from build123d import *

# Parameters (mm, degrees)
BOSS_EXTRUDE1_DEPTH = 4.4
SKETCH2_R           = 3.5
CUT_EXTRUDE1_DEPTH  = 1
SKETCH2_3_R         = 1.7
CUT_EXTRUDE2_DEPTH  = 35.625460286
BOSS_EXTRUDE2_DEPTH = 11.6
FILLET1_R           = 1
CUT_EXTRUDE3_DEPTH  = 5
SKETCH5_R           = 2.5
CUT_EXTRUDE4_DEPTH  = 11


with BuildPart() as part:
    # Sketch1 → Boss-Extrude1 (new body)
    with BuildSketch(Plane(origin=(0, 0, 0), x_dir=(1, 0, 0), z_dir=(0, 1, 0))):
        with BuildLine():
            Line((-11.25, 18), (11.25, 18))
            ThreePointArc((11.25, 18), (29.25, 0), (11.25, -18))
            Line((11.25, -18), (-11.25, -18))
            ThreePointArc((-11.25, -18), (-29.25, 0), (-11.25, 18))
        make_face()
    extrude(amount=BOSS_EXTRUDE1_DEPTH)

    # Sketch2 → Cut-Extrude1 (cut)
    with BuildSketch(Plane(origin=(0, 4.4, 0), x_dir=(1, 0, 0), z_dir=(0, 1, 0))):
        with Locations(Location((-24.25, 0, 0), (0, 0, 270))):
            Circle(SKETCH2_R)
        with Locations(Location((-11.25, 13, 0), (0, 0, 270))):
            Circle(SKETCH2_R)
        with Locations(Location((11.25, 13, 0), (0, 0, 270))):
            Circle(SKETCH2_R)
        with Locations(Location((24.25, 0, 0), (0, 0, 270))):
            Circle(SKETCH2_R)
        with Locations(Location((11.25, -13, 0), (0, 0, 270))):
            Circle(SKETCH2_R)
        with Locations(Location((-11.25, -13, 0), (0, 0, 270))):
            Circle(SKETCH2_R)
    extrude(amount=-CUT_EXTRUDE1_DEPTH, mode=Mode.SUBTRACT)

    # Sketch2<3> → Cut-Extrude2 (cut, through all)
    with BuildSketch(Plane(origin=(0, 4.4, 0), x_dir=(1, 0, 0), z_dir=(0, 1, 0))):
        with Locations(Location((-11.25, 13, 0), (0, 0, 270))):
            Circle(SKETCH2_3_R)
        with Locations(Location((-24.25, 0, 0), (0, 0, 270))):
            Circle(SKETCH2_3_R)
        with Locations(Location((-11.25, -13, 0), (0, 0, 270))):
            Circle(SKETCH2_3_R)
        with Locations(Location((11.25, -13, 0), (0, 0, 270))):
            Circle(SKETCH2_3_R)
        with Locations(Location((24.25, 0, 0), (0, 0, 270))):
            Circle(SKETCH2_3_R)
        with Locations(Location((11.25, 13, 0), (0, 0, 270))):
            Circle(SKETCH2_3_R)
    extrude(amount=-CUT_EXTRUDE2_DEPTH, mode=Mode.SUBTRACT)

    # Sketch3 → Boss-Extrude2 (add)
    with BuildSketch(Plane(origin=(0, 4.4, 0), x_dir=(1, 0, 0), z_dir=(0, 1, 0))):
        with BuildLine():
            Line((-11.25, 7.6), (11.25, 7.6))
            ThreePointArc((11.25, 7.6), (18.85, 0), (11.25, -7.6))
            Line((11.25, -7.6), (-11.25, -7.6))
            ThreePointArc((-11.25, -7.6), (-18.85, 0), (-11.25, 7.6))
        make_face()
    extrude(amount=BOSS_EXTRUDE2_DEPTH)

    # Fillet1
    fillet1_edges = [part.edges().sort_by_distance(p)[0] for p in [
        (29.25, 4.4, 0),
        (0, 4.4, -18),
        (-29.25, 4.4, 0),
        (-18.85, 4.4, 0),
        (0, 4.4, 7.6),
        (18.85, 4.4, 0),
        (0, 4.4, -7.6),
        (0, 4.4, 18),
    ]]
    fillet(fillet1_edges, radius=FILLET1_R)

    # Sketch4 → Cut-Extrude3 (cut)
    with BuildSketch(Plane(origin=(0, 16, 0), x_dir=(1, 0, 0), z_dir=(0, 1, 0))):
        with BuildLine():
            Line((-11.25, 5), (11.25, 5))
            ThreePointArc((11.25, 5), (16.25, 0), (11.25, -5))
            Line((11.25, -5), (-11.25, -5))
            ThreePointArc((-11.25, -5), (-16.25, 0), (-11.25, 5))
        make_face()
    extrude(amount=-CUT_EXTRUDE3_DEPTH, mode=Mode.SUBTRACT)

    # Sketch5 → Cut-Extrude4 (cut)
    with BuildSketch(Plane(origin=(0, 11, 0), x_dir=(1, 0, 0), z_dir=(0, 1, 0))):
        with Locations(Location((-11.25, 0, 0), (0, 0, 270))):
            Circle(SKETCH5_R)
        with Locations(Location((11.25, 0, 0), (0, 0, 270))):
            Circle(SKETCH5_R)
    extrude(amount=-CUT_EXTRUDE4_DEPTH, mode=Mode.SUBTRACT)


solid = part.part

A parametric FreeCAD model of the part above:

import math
import FreeCAD as App
import Part
import Sketcher


def edges_at(feature, points):
    """Names of the edges that pass closest to the given points."""
    edges = feature.Shape.Edges
    near = lambda p: min(range(len(edges)), key=lambda i: edges[i].distToShape(Part.Vertex(*p))[0])
    return sorted({f"Edge{near(p) + 1}" for p in points})

doc = App.newDocument("Part")
body = doc.addObject("PartDesign::Body", "Body")

sketch1 = body.newObject("Sketcher::SketchObject", "Sketch")
sketch1.AttachmentSupport = (doc.getObject("XZ_Plane"), [""])
sketch1.MapMode = "FlatFace"
sketch1.addGeometry(Part.LineSegment(App.Vector(11, -18, 0), App.Vector(-11, -18, 0)), False)
sketch1.addGeometry(Part.ArcOfCircle(Part.Circle(App.Vector(-11, 0, 0), App.Vector(0, 0, 1), 18), math.radians(90), math.radians(270)), False)
sketch1.addGeometry(Part.LineSegment(App.Vector(-11, 18, 0), App.Vector(11, 18, 0)), False)
sketch1.addGeometry(Part.ArcOfCircle(Part.Circle(App.Vector(11, 0, 0), App.Vector(0, 0, 1), 18), math.radians(-90), math.radians(90)), False)
sketch1.addConstraint(Sketcher.Constraint("Tangent", 0, 2, 1, 2))
sketch1.addConstraint(Sketcher.Constraint("Tangent", 1, 1, 2, 1))
sketch1.addConstraint(Sketcher.Constraint("Tangent", 2, 2, 3, 2))
sketch1.addConstraint(Sketcher.Constraint("Tangent", 3, 1, 0, 1))
sketch1.addConstraint(Sketcher.Constraint("Horizontal", 0))
sketch1.addConstraint(Sketcher.Constraint("Horizontal", 2))
sketch1.addConstraint(Sketcher.Constraint("Symmetric", 1, 3, 3, 3, -1, 1))
sketch1.addConstraint(Sketcher.Constraint("Radius", 1, 18.0))
sketch1.addConstraint(Sketcher.Constraint("DistanceX", 0, 2, 0, 1, 22.5))
pad1 = body.newObject("PartDesign::Pad", "Pad")
pad1.Profile = sketch1
pad1.Length = 4.4
pad1.Reversed = True

sketch2 = body.newObject("Sketcher::SketchObject", "Sketch001")
sketch2.AttachmentSupport = (doc.getObject("XZ_Plane"), [""])
sketch2.MapMode = "FlatFace"
sketch2.AttachmentOffset = App.Placement(App.Vector(0, 0, -4.4), App.Rotation())
sketch2.addGeometry(Part.Circle(App.Vector(-24.2, 0, 0), App.Vector(0, 0, 1), 3.5), False)
sketch2.addGeometry(Part.Circle(App.Vector(-11.2, -13, 0), App.Vector(0, 0, 1), 3.5), False)
sketch2.addGeometry(Part.Circle(App.Vector(11.2, -13, 0), App.Vector(0, 0, 1), 3.5), False)
sketch2.addGeometry(Part.Circle(App.Vector(24.2, 0, 0), App.Vector(0, 0, 1), 3.5), False)
sketch2.addGeometry(Part.Circle(App.Vector(11.2, 13, 0), App.Vector(0, 0, 1), 3.5), False)
sketch2.addGeometry(Part.Circle(App.Vector(-11.2, 13, 0), App.Vector(0, 0, 1), 3.5), False)
sketch2.addConstraint(Sketcher.Constraint("Equal", 0, 1))
sketch2.addConstraint(Sketcher.Constraint("Equal", 1, 2))
sketch2.addConstraint(Sketcher.Constraint("Equal", 2, 3))
sketch2.addConstraint(Sketcher.Constraint("Equal", 3, 4))
sketch2.addConstraint(Sketcher.Constraint("Equal", 4, 5))
sketch2.addConstraint(Sketcher.Constraint("Symmetric", 0, 3, 3, 3, -1, 1))
sketch2.addConstraint(Sketcher.Constraint("Symmetric", 1, 3, 4, 3, -1, 1))
sketch2.addConstraint(Sketcher.Constraint("Symmetric", 2, 3, 5, 3, -1, 1))
sketch2.addConstraint(Sketcher.Constraint("Symmetric", 1, 3, 2, 3, -2))
sketch2.addConstraint(Sketcher.Constraint("PointOnObject", 0, 3, -1))
sketch2.addConstraint(Sketcher.Constraint("Diameter", 0, 7.0))
sketch2.addConstraint(Sketcher.Constraint("DistanceY", 1, 3, -1, 1, 13.0))
sketch2.addConstraint(Sketcher.Constraint("DistanceX", 0, 3, 1, 3, 13.0))
sketch2.addConstraint(Sketcher.Constraint("DistanceX", 1, 3, 2, 3, 22.5))
pocket1 = body.newObject("PartDesign::Pocket", "Pocket")
pocket1.Profile = sketch2
pocket1.Length = 1
pocket1.Reversed = True

sketch3 = body.newObject("Sketcher::SketchObject", "Sketch002")
sketch3.AttachmentSupport = (doc.getObject("XZ_Plane"), [""])
sketch3.MapMode = "FlatFace"
sketch3.AttachmentOffset = App.Placement(App.Vector(0, 0, -4.4), App.Rotation())
sketch3.addGeometry(Part.Circle(App.Vector(-11.2, -13, 0), App.Vector(0, 0, 1), 1.7), False)
sketch3.addGeometry(Part.Circle(App.Vector(-24.2, 0, 0), App.Vector(0, 0, 1), 1.7), False)
sketch3.addGeometry(Part.Circle(App.Vector(-11.2, 13, 0), App.Vector(0, 0, 1), 1.7), False)
sketch3.addGeometry(Part.Circle(App.Vector(11.2, 13, 0), App.Vector(0, 0, 1), 1.7), False)
sketch3.addGeometry(Part.Circle(App.Vector(24.2, 0, 0), App.Vector(0, 0, 1), 1.7), False)
sketch3.addGeometry(Part.Circle(App.Vector(11.2, -13, 0), App.Vector(0, 0, 1), 1.7), False)
sketch3.addConstraint(Sketcher.Constraint("Equal", 0, 1))
sketch3.addConstraint(Sketcher.Constraint("Equal", 1, 2))
sketch3.addConstraint(Sketcher.Constraint("Equal", 2, 3))
sketch3.addConstraint(Sketcher.Constraint("Equal", 3, 4))
sketch3.addConstraint(Sketcher.Constraint("Equal", 4, 5))
sketch3.addConstraint(Sketcher.Constraint("Symmetric", 0, 3, 3, 3, -1, 1))
sketch3.addConstraint(Sketcher.Constraint("Symmetric", 1, 3, 4, 3, -1, 1))
sketch3.addConstraint(Sketcher.Constraint("Symmetric", 2, 3, 5, 3, -1, 1))
sketch3.addConstraint(Sketcher.Constraint("Symmetric", 2, 3, 3, 3, -2))
sketch3.addConstraint(Sketcher.Constraint("PointOnObject", 1, 3, -1))
sketch3.addConstraint(Sketcher.Constraint("Diameter", 0, 3.4))
sketch3.addConstraint(Sketcher.Constraint("DistanceY", 0, 3, -1, 1, 13.0))
sketch3.addConstraint(Sketcher.Constraint("DistanceX", 1, 3, 0, 3, 13.0))
sketch3.addConstraint(Sketcher.Constraint("DistanceX", 2, 3, 3, 3, 22.5))
pocket2 = body.newObject("PartDesign::Pocket", "Pocket001")
pocket2.Profile = sketch3
pocket2.Type = "ThroughAll"
pocket2.Reversed = True

sketch4 = body.newObject("Sketcher::SketchObject", "Sketch003")
sketch4.AttachmentSupport = (doc.getObject("XZ_Plane"), [""])
sketch4.MapMode = "FlatFace"
sketch4.AttachmentOffset = App.Placement(App.Vector(0, 0, -4.4), App.Rotation())
sketch4.addGeometry(Part.LineSegment(App.Vector(11, -8, 0), App.Vector(-11, -8, 0)), False)
sketch4.addGeometry(Part.ArcOfCircle(Part.Circle(App.Vector(-11, 0, 0), App.Vector(0, 0, 1), 8), math.radians(90), math.radians(270)), False)
sketch4.addGeometry(Part.LineSegment(App.Vector(-11, 8, 0), App.Vector(11, 8, 0)), False)
sketch4.addGeometry(Part.ArcOfCircle(Part.Circle(App.Vector(11, 0, 0), App.Vector(0, 0, 1), 8), math.radians(-90), math.radians(90)), False)
sketch4.addConstraint(Sketcher.Constraint("Tangent", 0, 2, 1, 2))
sketch4.addConstraint(Sketcher.Constraint("Tangent", 1, 1, 2, 1))
sketch4.addConstraint(Sketcher.Constraint("Tangent", 2, 2, 3, 2))
sketch4.addConstraint(Sketcher.Constraint("Tangent", 3, 1, 0, 1))
sketch4.addConstraint(Sketcher.Constraint("Horizontal", 0))
sketch4.addConstraint(Sketcher.Constraint("Horizontal", 2))
sketch4.addConstraint(Sketcher.Constraint("Symmetric", 1, 3, 3, 3, -1, 1))
sketch4.addConstraint(Sketcher.Constraint("Radius", 1, 7.6))
sketch4.addConstraint(Sketcher.Constraint("DistanceX", 0, 2, 0, 1, 22.5))
pad2 = body.newObject("PartDesign::Pad", "Pad001")
pad2.Profile = sketch4
pad2.Length = 11.6
pad2.Reversed = True
doc.recompute()

fillet = body.newObject("PartDesign::Fillet", "Fillet")
fillet.Base = (pad2, edges_at(pad2, [
    (29.25, 4.4, 0),
    (0, 4.4, -18),
    (-29.25, 4.4, 0),
    (-18.85, 4.4, 0),
    (0, 4.4, 7.6),
    (18.85, 4.4, 0),
    (0, 4.4, -7.6),
    (0, 4.4, 18),
]))
fillet.Radius = 1

sketch5 = body.newObject("Sketcher::SketchObject", "Sketch004")
sketch5.AttachmentSupport = (doc.getObject("XZ_Plane"), [""])
sketch5.MapMode = "FlatFace"
sketch5.AttachmentOffset = App.Placement(App.Vector(0, 0, -16), App.Rotation())
sketch5.addGeometry(Part.LineSegment(App.Vector(11, -5, 0), App.Vector(-11, -5, 0)), False)
sketch5.addGeometry(Part.ArcOfCircle(Part.Circle(App.Vector(-11, 0, 0), App.Vector(0, 0, 1), 5), math.radians(90), math.radians(270)), False)
sketch5.addGeometry(Part.LineSegment(App.Vector(-11, 5, 0), App.Vector(11, 5, 0)), False)
sketch5.addGeometry(Part.ArcOfCircle(Part.Circle(App.Vector(11, 0, 0), App.Vector(0, 0, 1), 5), math.radians(-90), math.radians(90)), False)
sketch5.addConstraint(Sketcher.Constraint("Tangent", 0, 2, 1, 2))
sketch5.addConstraint(Sketcher.Constraint("Tangent", 1, 1, 2, 1))
sketch5.addConstraint(Sketcher.Constraint("Tangent", 2, 2, 3, 2))
sketch5.addConstraint(Sketcher.Constraint("Tangent", 3, 1, 0, 1))
sketch5.addConstraint(Sketcher.Constraint("Horizontal", 0))
sketch5.addConstraint(Sketcher.Constraint("Horizontal", 2))
sketch5.addConstraint(Sketcher.Constraint("Symmetric", 1, 3, 3, 3, -1, 1))
sketch5.addConstraint(Sketcher.Constraint("Radius", 1, 5.0))
sketch5.addConstraint(Sketcher.Constraint("DistanceX", 0, 2, 0, 1, 22.5))
pocket3 = body.newObject("PartDesign::Pocket", "Pocket002")
pocket3.Profile = sketch5
pocket3.Length = 5
pocket3.Reversed = True

sketch6 = body.newObject("Sketcher::SketchObject", "Sketch005")
sketch6.AttachmentSupport = (doc.getObject("XZ_Plane"), [""])
sketch6.MapMode = "FlatFace"
sketch6.AttachmentOffset = App.Placement(App.Vector(0, 0, -11), App.Rotation())
sketch6.addGeometry(Part.Circle(App.Vector(-11.2, 0, 0), App.Vector(0, 0, 1), 2.5), False)
sketch6.addGeometry(Part.Circle(App.Vector(11.2, 0, 0), App.Vector(0, 0, 1), 2.5), False)
sketch6.addConstraint(Sketcher.Constraint("Equal", 0, 1))
sketch6.addConstraint(Sketcher.Constraint("Symmetric", 0, 3, 1, 3, -1, 1))
sketch6.addConstraint(Sketcher.Constraint("PointOnObject", 0, 3, -1))
sketch6.addConstraint(Sketcher.Constraint("Diameter", 0, 5.0))
sketch6.addConstraint(Sketcher.Constraint("DistanceX", 0, 3, 1, 3, 22.5))
pocket4 = body.newObject("PartDesign::Pocket", "Pocket003")
pocket4.Profile = sketch6
pocket4.Length = 11
pocket4.Reversed = True

doc.recompute()
